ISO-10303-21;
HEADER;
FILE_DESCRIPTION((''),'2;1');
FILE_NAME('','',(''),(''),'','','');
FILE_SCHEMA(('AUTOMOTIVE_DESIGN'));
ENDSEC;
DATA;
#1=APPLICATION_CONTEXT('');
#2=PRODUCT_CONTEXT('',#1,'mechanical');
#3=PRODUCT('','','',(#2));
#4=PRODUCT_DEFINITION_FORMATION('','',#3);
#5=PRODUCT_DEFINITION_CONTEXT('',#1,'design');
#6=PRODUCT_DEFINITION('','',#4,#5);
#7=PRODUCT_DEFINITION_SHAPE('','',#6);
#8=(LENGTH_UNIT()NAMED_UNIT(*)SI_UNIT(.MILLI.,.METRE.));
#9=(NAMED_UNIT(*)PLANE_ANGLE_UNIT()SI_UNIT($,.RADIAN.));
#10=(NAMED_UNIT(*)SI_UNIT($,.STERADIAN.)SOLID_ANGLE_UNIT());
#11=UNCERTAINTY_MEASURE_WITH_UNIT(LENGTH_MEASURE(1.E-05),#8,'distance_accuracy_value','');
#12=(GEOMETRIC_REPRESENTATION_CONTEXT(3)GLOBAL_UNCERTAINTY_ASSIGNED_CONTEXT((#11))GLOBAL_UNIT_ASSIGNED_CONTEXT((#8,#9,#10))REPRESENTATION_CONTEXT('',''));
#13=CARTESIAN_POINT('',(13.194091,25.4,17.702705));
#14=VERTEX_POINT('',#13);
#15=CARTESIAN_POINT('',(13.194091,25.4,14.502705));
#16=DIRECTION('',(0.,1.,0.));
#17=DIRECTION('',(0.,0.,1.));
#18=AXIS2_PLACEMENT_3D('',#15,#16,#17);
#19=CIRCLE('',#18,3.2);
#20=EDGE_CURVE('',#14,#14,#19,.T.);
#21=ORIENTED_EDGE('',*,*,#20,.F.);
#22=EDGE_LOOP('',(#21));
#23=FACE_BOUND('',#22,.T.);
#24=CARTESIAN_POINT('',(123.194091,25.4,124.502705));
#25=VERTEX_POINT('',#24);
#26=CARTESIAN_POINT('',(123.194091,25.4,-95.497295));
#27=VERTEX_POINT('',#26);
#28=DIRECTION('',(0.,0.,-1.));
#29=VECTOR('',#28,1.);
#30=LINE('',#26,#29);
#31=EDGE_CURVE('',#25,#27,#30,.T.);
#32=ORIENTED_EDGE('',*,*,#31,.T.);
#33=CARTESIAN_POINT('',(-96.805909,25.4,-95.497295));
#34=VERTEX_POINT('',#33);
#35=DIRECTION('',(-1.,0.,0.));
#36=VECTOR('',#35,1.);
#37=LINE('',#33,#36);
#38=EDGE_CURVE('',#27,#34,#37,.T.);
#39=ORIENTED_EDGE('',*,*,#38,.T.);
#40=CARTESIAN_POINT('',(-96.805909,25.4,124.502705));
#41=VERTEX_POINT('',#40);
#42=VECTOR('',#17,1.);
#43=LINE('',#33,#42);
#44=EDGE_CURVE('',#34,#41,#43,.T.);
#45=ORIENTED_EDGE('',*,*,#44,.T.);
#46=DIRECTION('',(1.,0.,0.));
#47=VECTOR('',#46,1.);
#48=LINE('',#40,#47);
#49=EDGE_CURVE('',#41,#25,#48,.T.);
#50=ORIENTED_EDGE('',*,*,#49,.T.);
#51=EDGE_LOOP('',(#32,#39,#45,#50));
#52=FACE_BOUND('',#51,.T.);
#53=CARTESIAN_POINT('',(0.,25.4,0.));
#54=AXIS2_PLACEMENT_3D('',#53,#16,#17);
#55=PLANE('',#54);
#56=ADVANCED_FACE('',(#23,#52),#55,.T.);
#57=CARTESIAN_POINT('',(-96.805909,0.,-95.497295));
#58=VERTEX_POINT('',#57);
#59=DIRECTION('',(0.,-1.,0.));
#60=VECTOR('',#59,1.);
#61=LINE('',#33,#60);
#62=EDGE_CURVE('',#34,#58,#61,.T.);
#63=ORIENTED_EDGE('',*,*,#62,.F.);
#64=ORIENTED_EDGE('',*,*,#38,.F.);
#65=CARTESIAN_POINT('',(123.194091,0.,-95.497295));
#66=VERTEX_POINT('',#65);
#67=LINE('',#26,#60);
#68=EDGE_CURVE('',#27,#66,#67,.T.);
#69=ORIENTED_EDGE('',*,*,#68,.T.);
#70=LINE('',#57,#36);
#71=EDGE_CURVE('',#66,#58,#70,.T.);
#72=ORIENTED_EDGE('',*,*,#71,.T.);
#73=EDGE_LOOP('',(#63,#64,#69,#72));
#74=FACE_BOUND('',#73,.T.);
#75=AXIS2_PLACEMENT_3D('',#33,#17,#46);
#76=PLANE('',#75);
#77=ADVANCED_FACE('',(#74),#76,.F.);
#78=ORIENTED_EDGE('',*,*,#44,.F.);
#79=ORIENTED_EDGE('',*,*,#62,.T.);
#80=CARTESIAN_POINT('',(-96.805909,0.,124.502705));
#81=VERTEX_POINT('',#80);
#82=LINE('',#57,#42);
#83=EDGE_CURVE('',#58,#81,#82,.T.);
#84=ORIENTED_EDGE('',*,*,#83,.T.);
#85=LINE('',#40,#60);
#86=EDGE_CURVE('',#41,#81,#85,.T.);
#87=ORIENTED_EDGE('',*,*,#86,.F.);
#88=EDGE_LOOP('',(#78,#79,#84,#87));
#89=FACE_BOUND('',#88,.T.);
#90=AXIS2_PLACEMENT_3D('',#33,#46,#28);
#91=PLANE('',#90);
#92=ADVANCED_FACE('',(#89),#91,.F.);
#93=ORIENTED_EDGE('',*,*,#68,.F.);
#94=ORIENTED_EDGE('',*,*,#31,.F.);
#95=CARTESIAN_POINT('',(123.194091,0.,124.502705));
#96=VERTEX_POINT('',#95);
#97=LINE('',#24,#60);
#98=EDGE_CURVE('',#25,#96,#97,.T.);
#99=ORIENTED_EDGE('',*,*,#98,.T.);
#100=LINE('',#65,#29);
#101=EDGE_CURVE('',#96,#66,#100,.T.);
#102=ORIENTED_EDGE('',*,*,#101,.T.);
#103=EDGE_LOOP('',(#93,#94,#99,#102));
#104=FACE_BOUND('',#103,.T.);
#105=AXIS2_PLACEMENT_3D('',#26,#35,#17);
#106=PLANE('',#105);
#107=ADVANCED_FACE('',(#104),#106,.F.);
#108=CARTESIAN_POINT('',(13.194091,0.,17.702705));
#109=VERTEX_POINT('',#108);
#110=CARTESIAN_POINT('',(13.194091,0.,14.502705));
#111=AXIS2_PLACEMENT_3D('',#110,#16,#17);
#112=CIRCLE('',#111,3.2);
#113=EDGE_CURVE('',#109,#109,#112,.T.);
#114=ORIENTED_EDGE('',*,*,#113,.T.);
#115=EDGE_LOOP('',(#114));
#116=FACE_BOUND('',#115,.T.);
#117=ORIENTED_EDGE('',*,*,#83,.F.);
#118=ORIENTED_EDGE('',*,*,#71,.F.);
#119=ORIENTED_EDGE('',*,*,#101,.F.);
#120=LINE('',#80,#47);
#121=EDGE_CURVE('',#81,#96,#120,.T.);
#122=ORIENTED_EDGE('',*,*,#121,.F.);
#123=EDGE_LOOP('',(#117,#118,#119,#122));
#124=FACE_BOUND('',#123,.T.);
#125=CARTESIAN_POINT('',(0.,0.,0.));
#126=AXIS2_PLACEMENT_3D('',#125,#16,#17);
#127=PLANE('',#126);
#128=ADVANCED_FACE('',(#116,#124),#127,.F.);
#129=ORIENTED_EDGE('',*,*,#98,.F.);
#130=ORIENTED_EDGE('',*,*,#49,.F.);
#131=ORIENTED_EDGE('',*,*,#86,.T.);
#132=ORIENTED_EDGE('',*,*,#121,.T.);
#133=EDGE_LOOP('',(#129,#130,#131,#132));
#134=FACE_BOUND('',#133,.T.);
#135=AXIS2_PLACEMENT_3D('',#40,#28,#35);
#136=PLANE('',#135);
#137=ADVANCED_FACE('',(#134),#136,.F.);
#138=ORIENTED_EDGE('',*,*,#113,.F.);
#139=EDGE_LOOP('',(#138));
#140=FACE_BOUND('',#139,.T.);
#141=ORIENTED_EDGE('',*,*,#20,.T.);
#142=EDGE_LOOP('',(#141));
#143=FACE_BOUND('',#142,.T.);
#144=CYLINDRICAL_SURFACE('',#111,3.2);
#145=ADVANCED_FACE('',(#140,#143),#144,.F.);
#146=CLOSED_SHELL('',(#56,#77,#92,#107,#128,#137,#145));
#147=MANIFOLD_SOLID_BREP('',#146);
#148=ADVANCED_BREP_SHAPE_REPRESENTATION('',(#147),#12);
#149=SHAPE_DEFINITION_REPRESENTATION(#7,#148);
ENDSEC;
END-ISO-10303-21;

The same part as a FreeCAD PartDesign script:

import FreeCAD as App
import Part
import Sketcher
Q = App.Units.Quantity

doc = App.newDocument("Part")
body = doc.addObject("PartDesign::Body", "Body")

# Sketch on XZ plane
sketch1 = doc.addObject("Sketcher::SketchObject", "Sketch")
body.addObject(sketch1)
sketch1.AttachmentSupport = (doc.XZ_Plane, [""])
sketch1.MapMode = "FlatFace"
sketch1.addGeometry(Part.LineSegment(App.Vector(-97, -95, 0), App.Vector(-97, 125, 0)), False)
sketch1.addGeometry(Part.LineSegment(App.Vector(-97, 125, 0), App.Vector(123, 125, 0)), False)
sketch1.addGeometry(Part.LineSegment(App.Vector(123, 125, 0), App.Vector(123, -95, 0)), False)
sketch1.addGeometry(Part.LineSegment(App.Vector(123, -95, 0), App.Vector(-97, -95, 0)), False)
sketch1.addConstraint(Sketcher.Constraint("Coincident", 0, 2, 1, 1))
sketch1.addConstraint(Sketcher.Constraint("Coincident", 1, 2, 2, 1))
sketch1.addConstraint(Sketcher.Constraint("Coincident", 2, 2, 3, 1))
sketch1.addConstraint(Sketcher.Constraint("Coincident", 3, 2, 0, 1))
sketch1.addConstraint(Sketcher.Constraint("Vertical", 0))
sketch1.addConstraint(Sketcher.Constraint("Horizontal", 1))
sketch1.addConstraint(Sketcher.Constraint("Vertical", 2))
sketch1.addConstraint(Sketcher.Constraint("Horizontal", 3))
sketch1.addConstraint(Sketcher.Constraint("Equal", 3, 0))
sketch1.addConstraint(Sketcher.Constraint("DistanceX", 1, 1, 1, 2, Q("220 mm")))
sketch1.addConstraint(Sketcher.Constraint("DistanceX", 0, 2, -1, 1, Q("96.805909 mm")))
sketch1.addConstraint(Sketcher.Constraint("DistanceY", -1, 1, 0, 2, Q("124.502705 mm")))
pad1 = doc.addObject("PartDesign::Pad", "Pad")
body.addObject(pad1)
pad1.Profile = sketch1
pad1.Length = 25.4
pad1.Reversed = True

# Sketch on XZ plane
sketch2 = doc.addObject("Sketcher::SketchObject", "Sketch001")
body.addObject(sketch2)
sketch2.AttachmentSupport = (doc.XZ_Plane, [""])
sketch2.MapMode = "FlatFace"
sketch2.AttachmentOffset = App.Placement(App.Vector(0, 0, -25.4), App.Rotation())
sketch2.addGeometry(Part.Circle(App.Vector(13.2, 14.5, 0), App.Vector(0, 0, 1), 3.2), False)
sketch2.addConstraint(Sketcher.Constraint("Diameter", 0, Q("6.4 mm")))
sketch2.addConstraint(Sketcher.Constraint("DistanceX", -1, 1, 0, 3, Q("13.194091 mm")))
sketch2.addConstraint(Sketcher.Constraint("DistanceY", -1, 1, 0, 3, Q("14.502705 mm")))
pocket1 = doc.addObject("PartDesign::Pocket", "Pocket")
body.addObject(pocket1)
pocket1.Profile = sketch2
pocket1.Length = 25.4
pocket1.Reversed = True

doc.recompute()
